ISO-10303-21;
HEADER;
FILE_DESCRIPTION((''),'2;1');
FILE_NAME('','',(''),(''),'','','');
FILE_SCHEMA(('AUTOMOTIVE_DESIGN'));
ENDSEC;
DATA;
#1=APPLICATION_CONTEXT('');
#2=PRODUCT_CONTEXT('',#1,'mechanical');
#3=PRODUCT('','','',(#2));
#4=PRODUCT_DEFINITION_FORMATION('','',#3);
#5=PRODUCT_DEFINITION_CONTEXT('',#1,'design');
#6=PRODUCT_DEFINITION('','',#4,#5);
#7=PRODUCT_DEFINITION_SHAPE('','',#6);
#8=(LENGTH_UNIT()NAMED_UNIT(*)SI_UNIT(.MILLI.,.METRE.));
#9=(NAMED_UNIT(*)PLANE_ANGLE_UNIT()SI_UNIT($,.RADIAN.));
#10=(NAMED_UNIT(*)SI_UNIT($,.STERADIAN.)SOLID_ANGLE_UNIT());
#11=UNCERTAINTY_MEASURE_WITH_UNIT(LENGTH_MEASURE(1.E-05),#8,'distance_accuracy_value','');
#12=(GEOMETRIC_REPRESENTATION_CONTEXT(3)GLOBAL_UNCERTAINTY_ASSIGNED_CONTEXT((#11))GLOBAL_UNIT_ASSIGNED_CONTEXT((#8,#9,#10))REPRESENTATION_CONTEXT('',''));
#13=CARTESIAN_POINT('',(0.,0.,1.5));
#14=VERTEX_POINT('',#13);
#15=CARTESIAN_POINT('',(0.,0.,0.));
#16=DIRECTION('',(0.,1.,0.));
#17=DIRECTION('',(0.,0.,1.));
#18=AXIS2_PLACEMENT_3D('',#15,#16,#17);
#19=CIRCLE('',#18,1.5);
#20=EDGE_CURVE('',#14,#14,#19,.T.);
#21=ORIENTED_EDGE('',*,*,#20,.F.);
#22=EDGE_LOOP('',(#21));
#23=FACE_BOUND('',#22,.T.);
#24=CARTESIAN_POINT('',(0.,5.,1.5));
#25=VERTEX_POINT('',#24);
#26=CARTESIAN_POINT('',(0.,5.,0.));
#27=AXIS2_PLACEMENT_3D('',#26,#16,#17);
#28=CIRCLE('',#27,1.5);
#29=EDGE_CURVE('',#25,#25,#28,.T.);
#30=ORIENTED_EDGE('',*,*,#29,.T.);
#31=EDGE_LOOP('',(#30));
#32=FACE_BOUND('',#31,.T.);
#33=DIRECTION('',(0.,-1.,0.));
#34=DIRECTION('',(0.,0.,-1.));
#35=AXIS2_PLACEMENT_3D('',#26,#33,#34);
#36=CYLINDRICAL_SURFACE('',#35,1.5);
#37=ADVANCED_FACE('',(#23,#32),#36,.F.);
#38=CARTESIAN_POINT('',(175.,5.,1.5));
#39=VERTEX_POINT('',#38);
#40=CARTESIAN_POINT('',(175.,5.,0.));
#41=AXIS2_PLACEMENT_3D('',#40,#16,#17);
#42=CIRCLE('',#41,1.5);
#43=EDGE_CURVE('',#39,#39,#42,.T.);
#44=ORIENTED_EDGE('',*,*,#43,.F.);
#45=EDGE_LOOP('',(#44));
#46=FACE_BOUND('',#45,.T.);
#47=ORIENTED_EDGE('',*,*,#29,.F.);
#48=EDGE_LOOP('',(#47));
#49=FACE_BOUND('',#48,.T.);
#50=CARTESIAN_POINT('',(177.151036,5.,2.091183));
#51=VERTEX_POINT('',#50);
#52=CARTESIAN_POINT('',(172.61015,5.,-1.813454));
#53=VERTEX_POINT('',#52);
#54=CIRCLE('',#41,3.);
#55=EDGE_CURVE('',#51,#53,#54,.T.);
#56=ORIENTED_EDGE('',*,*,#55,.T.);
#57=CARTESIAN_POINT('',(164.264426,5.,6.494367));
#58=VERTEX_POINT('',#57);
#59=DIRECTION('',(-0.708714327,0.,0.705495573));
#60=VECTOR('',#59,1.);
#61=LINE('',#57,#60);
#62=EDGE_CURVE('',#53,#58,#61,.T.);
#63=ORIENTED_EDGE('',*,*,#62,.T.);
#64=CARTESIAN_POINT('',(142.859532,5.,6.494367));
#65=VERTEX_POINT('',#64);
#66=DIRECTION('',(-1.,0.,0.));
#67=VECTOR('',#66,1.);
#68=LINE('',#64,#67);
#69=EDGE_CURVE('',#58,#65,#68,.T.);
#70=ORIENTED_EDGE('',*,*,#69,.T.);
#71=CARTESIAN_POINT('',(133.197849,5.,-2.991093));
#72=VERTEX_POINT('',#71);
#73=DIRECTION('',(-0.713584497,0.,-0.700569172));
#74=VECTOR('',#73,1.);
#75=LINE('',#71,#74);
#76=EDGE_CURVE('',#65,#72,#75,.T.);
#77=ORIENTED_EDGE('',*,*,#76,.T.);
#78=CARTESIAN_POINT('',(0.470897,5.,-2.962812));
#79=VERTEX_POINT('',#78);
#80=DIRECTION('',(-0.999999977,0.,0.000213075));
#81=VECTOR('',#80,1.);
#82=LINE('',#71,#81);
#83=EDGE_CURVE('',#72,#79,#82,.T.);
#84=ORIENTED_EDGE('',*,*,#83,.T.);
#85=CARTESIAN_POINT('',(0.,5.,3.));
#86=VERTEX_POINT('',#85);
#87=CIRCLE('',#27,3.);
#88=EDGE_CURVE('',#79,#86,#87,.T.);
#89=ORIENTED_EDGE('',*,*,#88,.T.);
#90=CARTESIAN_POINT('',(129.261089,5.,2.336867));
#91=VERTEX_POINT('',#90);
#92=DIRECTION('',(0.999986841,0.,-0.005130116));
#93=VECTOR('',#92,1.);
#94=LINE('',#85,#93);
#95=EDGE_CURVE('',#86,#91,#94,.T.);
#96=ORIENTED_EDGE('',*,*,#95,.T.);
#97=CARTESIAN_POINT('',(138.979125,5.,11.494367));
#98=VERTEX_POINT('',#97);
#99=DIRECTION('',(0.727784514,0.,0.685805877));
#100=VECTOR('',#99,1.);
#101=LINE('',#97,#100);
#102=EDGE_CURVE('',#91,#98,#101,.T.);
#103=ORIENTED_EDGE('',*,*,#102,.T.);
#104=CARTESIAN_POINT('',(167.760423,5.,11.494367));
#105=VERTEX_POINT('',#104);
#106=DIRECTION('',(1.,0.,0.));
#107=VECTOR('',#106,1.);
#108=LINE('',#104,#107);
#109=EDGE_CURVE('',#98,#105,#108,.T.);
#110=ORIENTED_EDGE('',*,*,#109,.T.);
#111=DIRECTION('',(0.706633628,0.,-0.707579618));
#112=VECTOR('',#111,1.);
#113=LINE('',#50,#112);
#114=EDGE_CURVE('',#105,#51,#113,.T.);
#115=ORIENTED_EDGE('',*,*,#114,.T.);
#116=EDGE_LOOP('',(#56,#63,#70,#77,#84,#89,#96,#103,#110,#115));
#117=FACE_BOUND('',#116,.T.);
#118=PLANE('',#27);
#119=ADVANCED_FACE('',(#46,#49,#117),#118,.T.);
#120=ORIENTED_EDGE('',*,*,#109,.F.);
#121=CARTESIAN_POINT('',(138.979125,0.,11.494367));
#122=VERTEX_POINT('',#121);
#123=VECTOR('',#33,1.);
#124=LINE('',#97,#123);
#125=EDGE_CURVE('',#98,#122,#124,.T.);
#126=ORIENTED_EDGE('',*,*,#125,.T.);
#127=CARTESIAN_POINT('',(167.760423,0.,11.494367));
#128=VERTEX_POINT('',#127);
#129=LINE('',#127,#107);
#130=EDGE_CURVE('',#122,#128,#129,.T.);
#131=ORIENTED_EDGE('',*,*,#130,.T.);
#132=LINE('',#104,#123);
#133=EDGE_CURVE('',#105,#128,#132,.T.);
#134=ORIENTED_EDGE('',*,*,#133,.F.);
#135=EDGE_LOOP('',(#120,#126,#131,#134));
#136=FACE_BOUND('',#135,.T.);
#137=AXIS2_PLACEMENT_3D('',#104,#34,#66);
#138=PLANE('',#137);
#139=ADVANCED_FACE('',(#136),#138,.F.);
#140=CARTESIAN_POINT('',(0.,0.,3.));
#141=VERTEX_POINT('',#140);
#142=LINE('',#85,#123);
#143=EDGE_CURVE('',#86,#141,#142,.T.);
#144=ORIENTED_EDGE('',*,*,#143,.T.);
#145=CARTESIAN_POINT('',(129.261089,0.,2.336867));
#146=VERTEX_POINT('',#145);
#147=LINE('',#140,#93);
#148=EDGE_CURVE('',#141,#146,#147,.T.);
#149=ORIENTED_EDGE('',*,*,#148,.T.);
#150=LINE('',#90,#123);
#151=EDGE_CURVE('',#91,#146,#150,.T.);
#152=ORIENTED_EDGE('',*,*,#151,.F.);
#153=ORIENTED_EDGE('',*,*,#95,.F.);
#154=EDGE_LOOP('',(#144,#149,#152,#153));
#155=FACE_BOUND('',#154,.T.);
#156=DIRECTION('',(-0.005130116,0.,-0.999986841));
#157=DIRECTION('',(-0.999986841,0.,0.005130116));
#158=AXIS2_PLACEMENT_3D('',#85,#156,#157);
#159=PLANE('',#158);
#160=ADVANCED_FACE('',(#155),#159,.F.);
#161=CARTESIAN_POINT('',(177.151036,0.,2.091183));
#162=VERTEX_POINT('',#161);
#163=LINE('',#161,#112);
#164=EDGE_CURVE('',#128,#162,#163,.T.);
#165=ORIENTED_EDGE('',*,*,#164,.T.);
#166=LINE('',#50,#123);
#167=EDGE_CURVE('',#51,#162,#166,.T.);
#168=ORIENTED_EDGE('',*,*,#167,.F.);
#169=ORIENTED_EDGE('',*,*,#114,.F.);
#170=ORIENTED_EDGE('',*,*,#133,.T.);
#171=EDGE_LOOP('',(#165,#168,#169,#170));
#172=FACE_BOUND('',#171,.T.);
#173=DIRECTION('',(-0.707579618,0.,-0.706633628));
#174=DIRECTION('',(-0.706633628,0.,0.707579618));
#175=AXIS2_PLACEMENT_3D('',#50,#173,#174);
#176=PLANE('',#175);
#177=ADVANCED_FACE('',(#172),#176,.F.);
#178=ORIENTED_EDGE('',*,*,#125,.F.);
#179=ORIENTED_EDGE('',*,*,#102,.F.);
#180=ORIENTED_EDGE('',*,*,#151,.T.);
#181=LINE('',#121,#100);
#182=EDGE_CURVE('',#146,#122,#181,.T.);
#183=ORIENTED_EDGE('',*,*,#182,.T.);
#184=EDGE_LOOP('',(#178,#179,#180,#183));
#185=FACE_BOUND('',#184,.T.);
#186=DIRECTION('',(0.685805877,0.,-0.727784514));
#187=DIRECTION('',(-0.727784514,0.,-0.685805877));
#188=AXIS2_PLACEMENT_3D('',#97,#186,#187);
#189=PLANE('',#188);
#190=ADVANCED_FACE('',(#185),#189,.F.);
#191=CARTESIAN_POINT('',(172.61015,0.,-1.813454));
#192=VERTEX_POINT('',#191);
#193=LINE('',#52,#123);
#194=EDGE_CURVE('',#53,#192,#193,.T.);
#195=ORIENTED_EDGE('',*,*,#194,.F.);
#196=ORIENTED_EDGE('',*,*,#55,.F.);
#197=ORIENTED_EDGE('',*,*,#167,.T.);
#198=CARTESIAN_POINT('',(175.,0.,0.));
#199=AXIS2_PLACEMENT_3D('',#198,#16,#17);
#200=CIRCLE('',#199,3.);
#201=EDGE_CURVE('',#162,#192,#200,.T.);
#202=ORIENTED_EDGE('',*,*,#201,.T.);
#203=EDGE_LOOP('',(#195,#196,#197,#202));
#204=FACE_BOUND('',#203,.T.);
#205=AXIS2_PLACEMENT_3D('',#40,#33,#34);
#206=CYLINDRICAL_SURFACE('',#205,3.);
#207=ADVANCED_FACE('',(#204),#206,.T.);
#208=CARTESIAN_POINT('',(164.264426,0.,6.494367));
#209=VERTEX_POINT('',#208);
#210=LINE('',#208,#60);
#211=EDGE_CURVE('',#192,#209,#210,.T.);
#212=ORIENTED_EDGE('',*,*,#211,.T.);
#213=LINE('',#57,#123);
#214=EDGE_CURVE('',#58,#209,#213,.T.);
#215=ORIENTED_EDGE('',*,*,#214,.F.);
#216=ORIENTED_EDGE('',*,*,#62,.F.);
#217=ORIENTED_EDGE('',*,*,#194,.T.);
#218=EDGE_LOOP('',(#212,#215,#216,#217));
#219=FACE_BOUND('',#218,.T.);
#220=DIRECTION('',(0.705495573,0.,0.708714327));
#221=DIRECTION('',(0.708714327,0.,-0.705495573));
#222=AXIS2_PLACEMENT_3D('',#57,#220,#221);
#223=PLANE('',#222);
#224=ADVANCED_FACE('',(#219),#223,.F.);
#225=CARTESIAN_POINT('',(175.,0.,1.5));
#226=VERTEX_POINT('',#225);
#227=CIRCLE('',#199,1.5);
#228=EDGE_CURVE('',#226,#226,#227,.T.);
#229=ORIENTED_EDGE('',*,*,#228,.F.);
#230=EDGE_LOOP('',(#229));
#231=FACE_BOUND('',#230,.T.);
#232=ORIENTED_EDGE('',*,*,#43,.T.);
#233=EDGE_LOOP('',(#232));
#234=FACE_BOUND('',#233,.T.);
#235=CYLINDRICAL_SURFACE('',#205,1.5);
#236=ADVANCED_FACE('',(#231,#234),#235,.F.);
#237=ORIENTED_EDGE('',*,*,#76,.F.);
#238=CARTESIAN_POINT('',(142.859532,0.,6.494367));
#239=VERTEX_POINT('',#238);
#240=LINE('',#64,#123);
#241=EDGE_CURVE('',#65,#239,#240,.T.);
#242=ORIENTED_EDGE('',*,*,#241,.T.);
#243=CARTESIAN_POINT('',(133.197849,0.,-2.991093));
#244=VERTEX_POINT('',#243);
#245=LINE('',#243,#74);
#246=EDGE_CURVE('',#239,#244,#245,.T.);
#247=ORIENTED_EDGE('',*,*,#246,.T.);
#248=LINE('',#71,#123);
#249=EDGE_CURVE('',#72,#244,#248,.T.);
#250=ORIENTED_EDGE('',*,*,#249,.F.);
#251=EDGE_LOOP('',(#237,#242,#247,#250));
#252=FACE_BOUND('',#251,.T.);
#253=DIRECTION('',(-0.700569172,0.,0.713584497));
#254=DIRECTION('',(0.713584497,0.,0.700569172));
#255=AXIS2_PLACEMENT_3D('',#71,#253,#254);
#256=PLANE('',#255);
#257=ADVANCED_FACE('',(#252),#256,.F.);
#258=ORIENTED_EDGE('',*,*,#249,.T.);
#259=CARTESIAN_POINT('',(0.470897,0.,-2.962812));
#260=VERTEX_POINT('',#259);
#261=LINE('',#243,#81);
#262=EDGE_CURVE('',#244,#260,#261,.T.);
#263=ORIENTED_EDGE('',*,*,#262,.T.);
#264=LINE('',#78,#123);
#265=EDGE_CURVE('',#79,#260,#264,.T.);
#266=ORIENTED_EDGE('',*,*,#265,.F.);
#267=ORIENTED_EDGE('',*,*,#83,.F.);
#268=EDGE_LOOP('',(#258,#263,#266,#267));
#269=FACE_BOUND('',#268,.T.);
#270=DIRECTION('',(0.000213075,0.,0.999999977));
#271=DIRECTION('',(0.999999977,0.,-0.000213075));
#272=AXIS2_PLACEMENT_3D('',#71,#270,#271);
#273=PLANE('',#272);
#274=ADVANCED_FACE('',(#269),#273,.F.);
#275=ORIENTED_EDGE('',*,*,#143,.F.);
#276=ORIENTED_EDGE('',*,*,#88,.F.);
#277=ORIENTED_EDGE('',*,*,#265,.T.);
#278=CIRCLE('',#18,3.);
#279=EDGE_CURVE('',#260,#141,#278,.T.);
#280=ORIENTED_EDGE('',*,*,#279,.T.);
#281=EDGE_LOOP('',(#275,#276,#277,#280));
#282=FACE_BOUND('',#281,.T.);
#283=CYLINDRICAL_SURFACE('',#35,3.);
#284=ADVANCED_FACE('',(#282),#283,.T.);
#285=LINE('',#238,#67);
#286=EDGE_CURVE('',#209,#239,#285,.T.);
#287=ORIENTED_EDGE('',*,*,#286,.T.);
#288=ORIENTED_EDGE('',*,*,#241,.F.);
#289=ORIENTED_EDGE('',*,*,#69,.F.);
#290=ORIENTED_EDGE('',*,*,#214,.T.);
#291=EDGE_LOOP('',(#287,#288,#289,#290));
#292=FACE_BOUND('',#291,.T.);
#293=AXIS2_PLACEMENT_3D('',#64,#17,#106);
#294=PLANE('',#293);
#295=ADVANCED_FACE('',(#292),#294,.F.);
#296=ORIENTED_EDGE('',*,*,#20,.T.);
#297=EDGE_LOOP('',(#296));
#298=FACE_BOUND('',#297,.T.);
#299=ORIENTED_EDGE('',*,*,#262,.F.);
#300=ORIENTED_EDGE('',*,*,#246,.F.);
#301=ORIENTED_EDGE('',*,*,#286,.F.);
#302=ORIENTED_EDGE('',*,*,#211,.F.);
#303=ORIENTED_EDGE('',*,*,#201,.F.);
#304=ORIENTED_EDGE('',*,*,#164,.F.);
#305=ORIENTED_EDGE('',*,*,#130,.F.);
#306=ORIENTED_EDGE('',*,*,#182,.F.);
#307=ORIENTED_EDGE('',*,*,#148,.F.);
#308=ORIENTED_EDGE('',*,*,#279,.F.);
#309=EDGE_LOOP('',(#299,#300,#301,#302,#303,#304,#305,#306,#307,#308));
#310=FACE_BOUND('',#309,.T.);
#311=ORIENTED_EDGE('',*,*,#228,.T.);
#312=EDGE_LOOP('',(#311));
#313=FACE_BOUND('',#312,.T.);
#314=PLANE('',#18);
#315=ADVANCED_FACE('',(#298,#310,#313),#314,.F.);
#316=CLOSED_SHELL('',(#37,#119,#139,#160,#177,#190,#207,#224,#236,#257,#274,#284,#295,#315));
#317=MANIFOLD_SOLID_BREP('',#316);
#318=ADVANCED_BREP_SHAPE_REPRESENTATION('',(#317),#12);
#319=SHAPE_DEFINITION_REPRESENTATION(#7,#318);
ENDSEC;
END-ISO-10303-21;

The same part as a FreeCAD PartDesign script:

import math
import FreeCAD as App
import Part
import Sketcher

V = App.Vector

doc = App.newDocument("Part")
body = doc.addObject("PartDesign::Body", "Body")

# Sketch on XZ plane
sketch1 = body.newObject("Sketcher::SketchObject", "Sketch")
sketch1.AttachmentSupport = (doc.getObject("XZ_Plane"), [""])
sketch1.MapMode = "FlatFace"
sketch1.addGeometry([
    Part.LineSegment(V(0, 3, 0), V(129.261089, 2.336867, 0)),  # 0
    Part.LineSegment(V(129.261089, 2.336867, 0), V(138.979125, 11.494367, 0)),  # 1
    Part.LineSegment(V(138.979125, 11.494367, 0), V(167.760423, 11.494367, 0)),  # 2
    Part.LineSegment(V(167.760423, 11.494367, 0), V(177.151036, 2.091183, 0)),  # 3
    Part.ArcOfCircle(Part.Circle(V(175, 0, 0), V(0, 0, 1), 3), math.radians(-142.808237), math.radians(44.191673)),  # 4
    Part.LineSegment(V(172.61015, -1.813454, 0), V(164.264426, 6.494367, 0)),  # 5
    Part.LineSegment(V(164.264426, 6.494367, 0), V(142.859532, 6.494367, 0)),  # 6
    Part.LineSegment(V(142.859532, 6.494367, 0), V(133.197849, -2.991093, 0)),  # 7
    Part.LineSegment(V(133.197849, -2.991093, 0), V(0.470897, -2.962812, 0)),  # 8
    Part.ArcOfCircle(Part.Circle(V(0, 0, 0), V(0, 0, 1), 3), math.radians(90), math.radians(279.030809)),  # 9
    Part.Circle(V(0, 0, 0), V(0, 0, 1), 1.5),  # 10
    Part.Circle(V(175, 0, 0), V(0, 0, 1), 1.5),  # 11
], False)
sketch1.addConstraint([
    Sketcher.Constraint("Coincident", 0, 2, 1, 1),
    Sketcher.Constraint("Coincident", 1, 2, 2, 1),
    Sketcher.Constraint("Coincident", 2, 2, 3, 1),
    Sketcher.Constraint("Coincident", 3, 2, 4, 2),
    Sketcher.Constraint("Coincident", 4, 1, 5, 1),
    Sketcher.Constraint("Coincident", 5, 2, 6, 1),
    Sketcher.Constraint("Coincident", 6, 2, 7, 1),
    Sketcher.Constraint("Coincident", 7, 2, 8, 1),
    Sketcher.Constraint("Coincident", 8, 2, 9, 2),
    Sketcher.Constraint("Coincident", 9, 1, 0, 1),
    Sketcher.Constraint("Horizontal", 2),
    Sketcher.Constraint("Horizontal", 6),
    Sketcher.Constraint("Coincident", 9, 3, -1, 1),
    Sketcher.Constraint("Coincident", 10, 3, -1, 1),
    Sketcher.Constraint("Coincident", 11, 3, 4, 3),
    Sketcher.Constraint("Equal", 4, 9),
    Sketcher.Constraint("Equal", 10, 11),
    Sketcher.Constraint("PointOnObject", 4, 3, -1),
    Sketcher.Constraint("PointOnObject", 9, 1, -2),
    Sketcher.Constraint("Diameter", 10, 3.0),
    Sketcher.Constraint("Radius", 4, 3.0),
    Sketcher.Constraint("DistanceX", -1, 1, 4, 3, 175.0),
    Sketcher.Constraint("DistanceY", 5, 2, 2, 2, 5.0),
    Sketcher.Constraint("DistanceX", 2, 1, 2, 2, 28.781298),
    Sketcher.Constraint("DistanceY", 0, 2, 1, 2, 9.1575),
    Sketcher.Constraint("Distance", 0, 129.26279),
    Sketcher.Constraint("DistanceX", 6, 2, 6, 1, 21.404894),
    Sketcher.Constraint("DistanceX", -1, 1, 4, 1, 172.61015),
    Sketcher.Constraint("DistanceX", -1, 1, 6, 2, 142.859532),
    Sketcher.Constraint("DistanceX", -1, 1, 7, 2, 133.197849),
    Sketcher.Constraint("DistanceX", 1, 2, 3, 2, 38.171911),
    Sketcher.Constraint("DistanceY", 4, 1, 2, 2, 13.30782),
    Sketcher.Constraint("DistanceX", 5, 2, 3, 2, 12.88661),
    Sketcher.Constraint("DistanceY", 7, 2, 0, 2, 5.32796),
    Sketcher.Constraint("DistanceY", 8, 2, 0, 2, 5.299679),
])
pad1 = body.newObject("PartDesign::Pad", "Pad")
pad1.Profile = sketch1
pad1.Length = 5
pad1.Reversed = True

doc.recompute()
